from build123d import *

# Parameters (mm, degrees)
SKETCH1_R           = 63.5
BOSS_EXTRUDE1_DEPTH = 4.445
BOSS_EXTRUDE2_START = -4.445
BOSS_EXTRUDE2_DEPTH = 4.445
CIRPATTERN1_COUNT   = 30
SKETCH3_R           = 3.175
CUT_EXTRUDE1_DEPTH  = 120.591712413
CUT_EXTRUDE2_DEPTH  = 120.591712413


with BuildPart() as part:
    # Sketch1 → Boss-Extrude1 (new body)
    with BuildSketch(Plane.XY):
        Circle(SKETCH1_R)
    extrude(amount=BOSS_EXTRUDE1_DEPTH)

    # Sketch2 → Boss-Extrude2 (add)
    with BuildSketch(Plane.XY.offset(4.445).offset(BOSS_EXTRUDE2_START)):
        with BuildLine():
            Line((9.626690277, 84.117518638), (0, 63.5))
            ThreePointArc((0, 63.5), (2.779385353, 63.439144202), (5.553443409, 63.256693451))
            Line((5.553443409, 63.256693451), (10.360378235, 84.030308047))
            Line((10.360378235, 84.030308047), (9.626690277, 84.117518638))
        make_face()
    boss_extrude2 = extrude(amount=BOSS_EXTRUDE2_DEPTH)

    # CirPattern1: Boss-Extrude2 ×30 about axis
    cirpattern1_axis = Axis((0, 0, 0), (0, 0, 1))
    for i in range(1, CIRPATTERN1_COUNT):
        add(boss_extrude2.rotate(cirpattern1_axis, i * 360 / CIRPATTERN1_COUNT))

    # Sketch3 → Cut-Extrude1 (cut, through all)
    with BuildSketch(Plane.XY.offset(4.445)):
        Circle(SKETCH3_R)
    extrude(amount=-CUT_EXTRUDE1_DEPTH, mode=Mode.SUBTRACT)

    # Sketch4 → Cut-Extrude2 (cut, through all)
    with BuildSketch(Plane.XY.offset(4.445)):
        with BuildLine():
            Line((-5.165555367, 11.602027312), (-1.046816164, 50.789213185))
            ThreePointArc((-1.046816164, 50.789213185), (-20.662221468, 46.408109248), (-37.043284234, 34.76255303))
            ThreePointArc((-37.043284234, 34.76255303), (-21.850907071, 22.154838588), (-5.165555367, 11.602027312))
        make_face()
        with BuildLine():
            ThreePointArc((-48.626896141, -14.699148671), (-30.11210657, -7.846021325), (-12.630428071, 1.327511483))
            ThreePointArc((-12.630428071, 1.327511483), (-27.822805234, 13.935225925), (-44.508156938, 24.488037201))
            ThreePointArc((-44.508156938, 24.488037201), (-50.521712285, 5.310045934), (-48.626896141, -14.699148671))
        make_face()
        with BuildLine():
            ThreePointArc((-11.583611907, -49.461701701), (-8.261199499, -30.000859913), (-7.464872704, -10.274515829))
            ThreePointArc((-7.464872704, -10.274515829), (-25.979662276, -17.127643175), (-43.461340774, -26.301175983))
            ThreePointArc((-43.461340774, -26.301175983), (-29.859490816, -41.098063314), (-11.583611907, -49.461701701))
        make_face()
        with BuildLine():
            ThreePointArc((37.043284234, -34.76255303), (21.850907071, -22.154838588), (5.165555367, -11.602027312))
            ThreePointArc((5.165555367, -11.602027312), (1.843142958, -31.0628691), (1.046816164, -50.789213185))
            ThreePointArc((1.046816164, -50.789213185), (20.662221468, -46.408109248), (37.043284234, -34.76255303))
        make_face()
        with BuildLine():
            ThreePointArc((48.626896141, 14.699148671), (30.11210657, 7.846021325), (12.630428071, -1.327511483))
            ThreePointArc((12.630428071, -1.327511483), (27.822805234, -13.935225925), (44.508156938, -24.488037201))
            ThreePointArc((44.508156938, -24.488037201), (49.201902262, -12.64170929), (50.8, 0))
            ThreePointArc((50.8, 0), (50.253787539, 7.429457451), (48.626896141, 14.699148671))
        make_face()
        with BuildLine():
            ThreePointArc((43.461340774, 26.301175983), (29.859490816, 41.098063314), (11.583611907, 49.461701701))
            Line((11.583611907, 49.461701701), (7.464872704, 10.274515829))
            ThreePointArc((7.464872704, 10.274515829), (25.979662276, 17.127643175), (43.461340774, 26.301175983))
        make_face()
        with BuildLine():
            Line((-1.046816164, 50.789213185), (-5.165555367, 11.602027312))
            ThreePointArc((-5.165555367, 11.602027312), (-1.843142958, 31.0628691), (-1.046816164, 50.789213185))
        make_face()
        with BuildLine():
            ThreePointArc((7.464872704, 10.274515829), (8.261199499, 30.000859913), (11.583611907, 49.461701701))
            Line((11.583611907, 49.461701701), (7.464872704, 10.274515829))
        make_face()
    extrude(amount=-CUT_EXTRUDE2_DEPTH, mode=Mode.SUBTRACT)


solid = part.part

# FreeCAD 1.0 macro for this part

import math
import FreeCAD as App
import Part
import Sketcher

V = App.Vector
Q = App.Units.Quantity

doc = App.newDocument("Part")
body = doc.addObject("PartDesign::Body", "Body")

sketch1 = body.newObject("Sketcher::SketchObject", "Sketch")
sketch1.AttachmentSupport = (doc.getObject("XY_Plane"), [""])
sketch1.MapMode = "FlatFace"
sketch1.addGeometry(Part.Circle(V(0, 0, 0), V(0, 0, 1), 63.5), False)
sketch1.addConstraint(Sketcher.Constraint("Coincident", 0, 3, -1, 1))
sketch1.addConstraint(Sketcher.Constraint("Diameter", 0, Q("5 in")))
pad1 = body.newObject("PartDesign::Pad", "Pad")
pad1.Profile = sketch1
pad1.Length = Q("0.175 in")

sketch2 = body.newObject("Sketcher::SketchObject", "Sketch001")
sketch2.AttachmentSupport = (doc.getObject("XY_Plane"), [""])
sketch2.MapMode = "FlatFace"
sketch2.addGeometry(Part.LineSegment(V(9.62669, 84.117519, 0), V(0, 63.5, 0)), False)
sketch2.addGeometry(Part.ArcOfCircle(Part.Circle(V(0, 0, 0), V(0, 0, 1), 63.5), math.radians(84.982742), math.radians(90)), False)
sketch2.addGeometry(Part.LineSegment(V(5.553443, 63.256693, 0), V(10.360378, 84.030308, 0)), False)
sketch2.addGeometry(Part.LineSegment(V(10.360378, 84.030308, 0), V(9.62669, 84.117519, 0)), False)
sketch2.addConstraint(Sketcher.Constraint("Coincident", 0, 2, 1, 2))
sketch2.addConstraint(Sketcher.Constraint("Coincident", 1, 1, 2, 1))
sketch2.addConstraint(Sketcher.Constraint("Coincident", 2, 2, 3, 1))
sketch2.addConstraint(Sketcher.Constraint("Coincident", 3, 2, 0, 1))
sketch2.addConstraint(Sketcher.Constraint("Coincident", 1, 3, -1, 1))
sketch2.addConstraint(Sketcher.Constraint("PointOnObject", 0, 2, -2))
sketch2.addConstraint(Sketcher.Constraint("Radius", 1, Q("2.5 in")))
sketch2.addConstraint(Sketcher.Constraint("DistanceX", -1, 1, 2, 2, 10.360378))
sketch2.addConstraint(Sketcher.Constraint("DistanceY", -1, 1, 2, 2, 84.030308))
sketch2.addConstraint(Sketcher.Constraint("DistanceX", -1, 1, 3, 2, 9.62669))
sketch2.addConstraint(Sketcher.Constraint("DistanceY", -1, 1, 3, 2, 84.117519))
sketch2.addConstraint(Sketcher.Constraint("Distance", 2, 21.322516))
pad2 = body.newObject("PartDesign::Pad", "Pad001")
pad2.Profile = sketch2
pad2.Length = Q("0.175 in")
doc.recompute()

polarpattern = body.newObject("PartDesign::PolarPattern", "PolarPattern")
polarpattern.Originals = [pad2]
polarpattern.Axis = (doc.getObject("Z_Axis"), [""])
polarpattern.Angle = 360
polarpattern.Occurrences = 30
body.Tip = polarpattern

sketch3 = body.newObject("Sketcher::SketchObject", "Sketch002")
sketch3.AttachmentSupport = (doc.getObject("XY_Plane"), [""])
sketch3.MapMode = "FlatFace"
sketch3.AttachmentOffset = App.Placement(V(0, 0, 0.175 * 25.4), App.Rotation())
sketch3.addGeometry(Part.Circle(V(0, 0, 0), V(0, 0, 1), 3.175), False)
sketch3.addConstraint(Sketcher.Constraint("Coincident", 0, 3, -1, 1))
sketch3.addConstraint(Sketcher.Constraint("Diameter", 0, Q("0.25 in")))
pocket1 = body.newObject("PartDesign::Pocket", "Pocket")
pocket1.Profile = sketch3
pocket1.Type = "ThroughAll"

sketch4 = body.newObject("Sketcher::SketchObject", "Sketch003")
sketch4.AttachmentSupport = (doc.getObject("XY_Plane"), [""])
sketch4.MapMode = "FlatFace"
sketch4.AttachmentOffset = App.Placement(V(0, 0, 0.175 * 25.4), App.Rotation())
sketch4.addGeometry(Part.ArcOfCircle(Part.Circle(V(0, 0, 0), V(0, 0, 1), 50.8), math.radians(91.180756), math.radians(136.819244)), False)
sketch4.addGeometry(Part.ArcOfCircle(Part.Circle(V(68.344691, 146.298429, 0), V(0, 0, 1), 153.449916), math.radians(-133.376599), math.radians(-118.623401)), False)
sketch4.addGeometry(Part.ArcOfCircle(Part.Circle(V(-154.452444, 47.102753, 0), V(0, 0, 1), 153.449916), math.radians(-13.376599), math.radians(1.376599)), False)
sketch4.addGeometry(Part.ArcOfCircle(Part.Circle(V(-92.52581, 132.337453, 0), V(0, 0, 1), 153.449916), math.radians(-73.376599), math.radians(-58.623401)), False)
sketch4.addGeometry(Part.ArcOfCircle(Part.Circle(V(-118.018403, -110.208364, 0), V(0, 0, 1), 153.449916), math.radians(46.623401), math.radians(61.376599)), False)
sketch4.addGeometry(Part.ArcOfCircle(Part.Circle(V(0, 0, 0), V(0, 0, 1), 50.8), math.radians(151.180756), math.radians(196.819244)), False)
sketch4.addGeometry(Part.ArcOfCircle(Part.Circle(V(-160.870501, -13.960976, 0), V(0, 0, 1), 153.449916), math.radians(-13.376599), math.radians(1.376599)), False)
sketch4.addGeometry(Part.ArcOfCircle(Part.Circle(V(36.434042, -157.311117, 0), V(0, 0, 1), 153.449916), math.radians(106.623401), math.radians(121.376599)), False)
sketch4.addGeometry(Part.ArcOfCircle(Part.Circle(V(0, 0, 0), V(0, 0, 1), 50.8), math.radians(-148.819244), math.radians(-103.180756)), False)
sketch4.addGeometry(Part.ArcOfCircle(Part.Circle(V(-68.344691, -146.298429, 0), V(0, 0, 1), 153.449916), math.radians(46.623401), math.radians(61.376599)), False)
sketch4.addGeometry(Part.ArcOfCircle(Part.Circle(V(154.452444, -47.102753, 0), V(0, 0, 1), 153.449916), math.radians(166.623401), math.radians(181.376599)), False)
sketch4.addGeometry(Part.ArcOfCircle(Part.Circle(V(0, 0, 0), V(0, 0, 1), 50.8), math.radians(-88.819244), math.radians(-43.180756)), False)
sketch4.addGeometry(Part.ArcOfCircle(Part.Circle(V(92.52581, -132.337453, 0), V(0, 0, 1), 153.449916), math.radians(106.623401), math.radians(121.376599)), False)
sketch4.addGeometry(Part.ArcOfCircle(Part.Circle(V(118.018403, 110.208364, 0), V(0, 0, 1), 153.449916), math.radians(-133.376599), math.radians(-118.623401)), False)
sketch4.addGeometry(Part.ArcOfCircle(Part.Circle(V(0, 0, 0), V(0, 0, 1), 50.8), math.radians(-28.819244), math.radians(0)), False)
sketch4.addGeometry(Part.ArcOfCircle(Part.Circle(V(0, 0, 0), V(0, 0, 1), 50.8), math.radians(0), math.radians(16.819244)), False)
sketch4.addGeometry(Part.ArcOfCircle(Part.Circle(V(0, 0, 0), V(0, 0, 1), 50.8), math.radians(31.180756), math.radians(76.819244)), False)
sketch4.addGeometry(Part.ArcOfCircle(Part.Circle(V(160.870501, 13.960976, 0), V(0, 0, 1), 153.449916), math.radians(166.623401), math.radians(181.376599)), False)
sketch4.addGeometry(Part.ArcOfCircle(Part.Circle(V(-36.434042, 157.311117, 0), V(0, 0, 1), 153.449916), math.radians(-73.376599), math.radians(-58.623401)), False)
sketch4.addConstraint(Sketcher.Constraint("Coincident", 0, 2, 1, 1))
sketch4.addConstraint(Sketcher.Constraint("Coincident", 1, 2, 2, 1))
sketch4.addConstraint(Sketcher.Constraint("Coincident", 2, 2, 0, 1))
sketch4.addConstraint(Sketcher.Constraint("Coincident", 3, 2, 4, 1))
sketch4.addConstraint(Sketcher.Constraint("Coincident", 4, 2, 5, 1))
sketch4.addConstraint(Sketcher.Constraint("Coincident", 5, 2, 3, 1))
sketch4.addConstraint(Sketcher.Constraint("Coincident", 6, 2, 7, 1))
sketch4.addConstraint(Sketcher.Constraint("Coincident", 7, 2, 8, 1))
sketch4.addConstraint(Sketcher.Constraint("Coincident", 8, 2, 6, 1))
sketch4.addConstraint(Sketcher.Constraint("Coincident", 9, 2, 10, 1))
sketch4.addConstraint(Sketcher.Constraint("Coincident", 10, 2, 11, 1))
sketch4.addConstraint(Sketcher.Constraint("Coincident", 11, 2, 9, 1))
sketch4.addConstraint(Sketcher.Constraint("Coincident", 12, 2, 13, 1))
sketch4.addConstraint(Sketcher.Constraint("Coincident", 13, 2, 14, 1))
sketch4.addConstraint(Sketcher.Constraint("Tangent", 14, 2, 15, 1))
sketch4.addConstraint(Sketcher.Constraint("Coincident", 15, 2, 12, 1))
sketch4.addConstraint(Sketcher.Constraint("Coincident", 16, 2, 17, 1))
sketch4.addConstraint(Sketcher.Constraint("Coincident", 17, 2, 18, 1))
sketch4.addConstraint(Sketcher.Constraint("Coincident", 18, 2, 16, 1))
sketch4.addConstraint(Sketcher.Constraint("Coincident", 0, 3, -1, 1))
sketch4.addConstraint(Sketcher.Constraint("Coincident", 5, 3, -1, 1))
sketch4.addConstraint(Sketcher.Constraint("Coincident", 8, 3, -1, 1))
sketch4.addConstraint(Sketcher.Constraint("Coincident", 11, 3, -1, 1))
sketch4.addConstraint(Sketcher.Constraint("Coincident", 14, 3, -1, 1))
sketch4.addConstraint(Sketcher.Constraint("Coincident", 16, 3, -1, 1))
sketch4.addConstraint(Sketcher.Constraint("Equal", 1, 2))
sketch4.addConstraint(Sketcher.Constraint("Equal", 2, 3))
sketch4.addConstraint(Sketcher.Constraint("Equal", 3, 4))
sketch4.addConstraint(Sketcher.Constraint("Equal", 0, 5))
sketch4.addConstraint(Sketcher.Constraint("Equal", 4, 6))
sketch4.addConstraint(Sketcher.Constraint("Equal", 6, 7))
sketch4.addConstraint(Sketcher.Constraint("Equal", 5, 8))
sketch4.addConstraint(Sketcher.Constraint("Equal", 7, 9))
sketch4.addConstraint(Sketcher.Constraint("Equal", 9, 10))
sketch4.addConstraint(Sketcher.Constraint("Equal", 8, 11))
sketch4.addConstraint(Sketcher.Constraint("Equal", 10, 12))
sketch4.addConstraint(Sketcher.Constraint("Equal", 12, 13))
sketch4.addConstraint(Sketcher.Constraint("Equal", 11, 14))
sketch4.addConstraint(Sketcher.Constraint("Equal", 14, 15))
sketch4.addConstraint(Sketcher.Constraint("Equal", 15, 16))
sketch4.addConstraint(Sketcher.Constraint("Equal", 13, 17))
sketch4.addConstraint(Sketcher.Constraint("Equal", 17, 18))
sketch4.addConstraint(Sketcher.Constraint("Symmetric", 1, 3, 9, 3, -1, 1))
sketch4.addConstraint(Sketcher.Constraint("Symmetric", 2, 3, 10, 3, -1, 1))
sketch4.addConstraint(Sketcher.Constraint("Symmetric", 3, 3, 12, 3, -1, 1))
sketch4.addConstraint(Sketcher.Constraint("Symmetric", 4, 3, 13, 3, -1, 1))
sketch4.addConstraint(Sketcher.Constraint("Symmetric", 6, 3, 17, 3, -1, 1))
sketch4.addConstraint(Sketcher.Constraint("Symmetric", 7, 3, 18, 3, -1, 1))
sketch4.addConstraint(Sketcher.Constraint("PointOnObject", 14, 2, -1))
sketch4.addConstraint(Sketcher.Constraint("Radius", 0, Q("2 in")))
sketch4.addConstraint(Sketcher.Constraint("Radius", 1, 153.449916))
sketch4.addConstraint(Sketcher.Constraint("DistanceX", 6, 3, -1, 1, 160.870501))
sketch4.addConstraint(Sketcher.Constraint("DistanceY", 8, 2, -1, 1, 49.461702))
sketch4.addConstraint(Sketcher.Constraint("DistanceY", 2, 3, 3, 3, 85.2347))
sketch4.addConstraint(Sketcher.Constraint("DistanceX", 3, 3, 1, 3, 160.870501))
sketch4.addConstraint(Sketcher.Constraint("DistanceX", 6, 3, 4, 3, 42.852098))
sketch4.addConstraint(Sketcher.Constraint("DistanceX", 4, 2, 1, 2, 39.342602))
sketch4.addConstraint(Sketcher.Constraint("DistanceX", -1, 1, 1, 3, 68.344691))
sketch4.addConstraint(Sketcher.Constraint("DistanceY", -1, 1, 1, 3, 146.298429))
sketch4.addConstraint(Sketcher.Constraint("DistanceX", -1, 1, 7, 3, 36.434042))
sketch4.addConstraint(Sketcher.Constraint("DistanceX", 3, 2, -1, 1, 12.630428))
sketch4.addConstraint(Sketcher.Constraint("DistanceY", -1, 1, 3, 2, 1.327511))
sketch4.addConstraint(Sketcher.Constraint("DistanceX", 7, 2, -1, 1, 43.461341))
pocket2 = body.newObject("PartDesign::Pocket", "Pocket001")
pocket2.Profile = sketch4
pocket2.Type = "ThroughAll"

doc.recompute()
